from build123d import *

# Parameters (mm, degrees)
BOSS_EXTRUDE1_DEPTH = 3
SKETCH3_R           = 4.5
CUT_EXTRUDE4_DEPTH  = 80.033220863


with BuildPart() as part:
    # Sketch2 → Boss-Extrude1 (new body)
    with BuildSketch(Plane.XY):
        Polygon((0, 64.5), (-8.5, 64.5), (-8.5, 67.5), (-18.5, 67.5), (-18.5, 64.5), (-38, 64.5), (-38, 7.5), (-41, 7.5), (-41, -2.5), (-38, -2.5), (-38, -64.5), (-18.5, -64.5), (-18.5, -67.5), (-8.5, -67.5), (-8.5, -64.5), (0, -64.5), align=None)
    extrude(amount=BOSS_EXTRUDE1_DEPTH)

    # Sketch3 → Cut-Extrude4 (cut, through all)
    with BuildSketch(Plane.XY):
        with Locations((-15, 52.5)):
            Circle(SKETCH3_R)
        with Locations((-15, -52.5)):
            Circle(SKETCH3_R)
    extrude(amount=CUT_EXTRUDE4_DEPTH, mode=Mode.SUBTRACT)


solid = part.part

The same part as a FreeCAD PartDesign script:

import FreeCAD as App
import Part
import Sketcher

V = App.Vector
Q = App.Units.Quantity


def add_polygon(sketch, points):
    """Adds a closed chain of lines whose ends are joined by coincident constraints."""
    first, n = sketch.GeometryCount, len(points)
    for a, b in zip(points, points[1:] + points[:1]):
        sketch.addGeometry(Part.LineSegment(App.Vector(*a, 0), App.Vector(*b, 0)), False)
    for i in range(n):
        sketch.addConstraint(Sketcher.Constraint("Coincident", first + i, 2, first + (i + 1) % n, 1))

doc = App.newDocument("Part")
body = doc.addObject("PartDesign::Body", "Body")

sketch1 = body.newObject("Sketcher::SketchObject", "Sketch")
sketch1.AttachmentSupport = (doc.getObject("XY_Plane"), [""])
sketch1.MapMode = "FlatFace"
add_polygon(sketch1, [(0, 64.5), (-8.5, 64.5), (-8.5, 67.5), (-18.5, 67.5), (-18.5, 64.5), (-38, 64.5), (-38, 7.5), (-41, 7.5), (-41, -2.5), (-38, -2.5), (-38, -64.5), (-18.5, -64.5), (-18.5, -67.5), (-8.5, -67.5), (-8.5, -64.5), (0, -64.5)])
sketch1.addConstraint([
    Sketcher.Constraint("Horizontal", 0),
    Sketcher.Constraint("Vertical", 1),
    Sketcher.Constraint("Horizontal", 2),
    Sketcher.Constraint("Vertical", 3),
    Sketcher.Constraint("Horizontal", 4),
    Sketcher.Constraint("Vertical", 5),
    Sketcher.Constraint("Horizontal", 6),
    Sketcher.Constraint("Vertical", 7),
    Sketcher.Constraint("Horizontal", 8),
    Sketcher.Constraint("Vertical", 9),
    Sketcher.Constraint("Horizontal", 10),
    Sketcher.Constraint("Vertical", 11),
    Sketcher.Constraint("Horizontal", 12),
    Sketcher.Constraint("Vertical", 13),
    Sketcher.Constraint("Horizontal", 14),
    Sketcher.Constraint("Vertical", 15),
    Sketcher.Constraint("Symmetric", 14, 2, 15, 2, -1, 1),
    Sketcher.Constraint("Symmetric", 4, 2, 9, 2, -1),
    Sketcher.Constraint("Symmetric", 2, 2, 11, 2, -1),
    Sketcher.Constraint("Horizontal", 0, 2, 3, 2),
    Sketcher.Constraint("Vertical", 1, 2, 12, 2),
    Sketcher.Constraint("Equal", 8, 1),
    Sketcher.Constraint("Equal", 12, 7),
    Sketcher.Constraint("DistanceX", 2, 2, 2, 1, Q("10 mm")),
    Sketcher.Constraint("DistanceX", 6, 2, 6, 1, Q("3 mm")),
    Sketcher.Constraint("DistanceY", 5, 2, 5, 1, Q("57 mm")),
    Sketcher.Constraint("DistanceY", 9, 2, 9, 1, Q("62 mm")),
    Sketcher.Constraint("DistanceX", 0, 2, 0, 1, Q("8.5 mm")),
    Sketcher.Constraint("DistanceX", 4, 2, 4, 1, Q("19.5 mm")),
])
pad1 = body.newObject("PartDesign::Pad", "Pad")
pad1.Profile = sketch1
pad1.Length = 3

sketch2 = body.newObject("Sketcher::SketchObject", "Sketch001")
sketch2.AttachmentSupport = (doc.getObject("XY_Plane"), [""])
sketch2.MapMode = "FlatFace"
sketch2.addGeometry([
    Part.Circle(V(-15, 52.5, 0), V(0, 0, 1), 4.5),
    Part.Circle(V(-15, -52.5, 0), V(0, 0, 1), 4.5),
], False)
sketch2.addConstraint([
    Sketcher.Constraint("Equal", 0, 1),
    Sketcher.Constraint("Symmetric", 0, 3, 1, 3, -1),
    Sketcher.Constraint("Diameter", 0, Q("9 mm")),
    Sketcher.Constraint("DistanceX", 0, 3, -1, 1, Q("15 mm")),
    Sketcher.Constraint("DistanceY", 1, 3, 0, 3, Q("105 mm")),
])
pocket1 = body.newObject("PartDesign::Pocket", "Pocket")
pocket1.Profile = sketch2
pocket1.Type = "ThroughAll"
pocket1.Reversed = True

doc.recompute()
